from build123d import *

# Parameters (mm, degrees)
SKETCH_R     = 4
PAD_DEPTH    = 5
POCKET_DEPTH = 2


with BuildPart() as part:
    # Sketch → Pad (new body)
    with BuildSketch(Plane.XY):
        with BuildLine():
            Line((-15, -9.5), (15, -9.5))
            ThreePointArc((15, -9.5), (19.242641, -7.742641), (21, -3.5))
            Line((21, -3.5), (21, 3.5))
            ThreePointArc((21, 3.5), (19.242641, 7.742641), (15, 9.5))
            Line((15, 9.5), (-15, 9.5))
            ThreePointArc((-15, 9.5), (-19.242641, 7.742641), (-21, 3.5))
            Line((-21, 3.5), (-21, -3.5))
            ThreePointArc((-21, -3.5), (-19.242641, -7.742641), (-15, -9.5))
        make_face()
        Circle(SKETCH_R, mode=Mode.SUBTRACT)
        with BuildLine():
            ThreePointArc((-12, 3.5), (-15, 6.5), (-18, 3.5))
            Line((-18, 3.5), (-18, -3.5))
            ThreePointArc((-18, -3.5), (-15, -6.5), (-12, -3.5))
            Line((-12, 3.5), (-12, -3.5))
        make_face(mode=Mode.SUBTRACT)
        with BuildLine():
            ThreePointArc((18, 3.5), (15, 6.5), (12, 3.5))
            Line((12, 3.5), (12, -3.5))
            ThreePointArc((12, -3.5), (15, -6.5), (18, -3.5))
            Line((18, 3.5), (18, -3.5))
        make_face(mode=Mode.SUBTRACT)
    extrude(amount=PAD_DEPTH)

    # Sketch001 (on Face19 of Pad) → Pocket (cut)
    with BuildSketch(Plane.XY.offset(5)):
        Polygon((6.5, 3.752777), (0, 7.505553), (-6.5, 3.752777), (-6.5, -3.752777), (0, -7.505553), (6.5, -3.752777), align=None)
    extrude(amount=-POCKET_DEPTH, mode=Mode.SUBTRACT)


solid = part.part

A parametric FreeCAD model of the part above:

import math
import FreeCAD as App
import Part
import Sketcher
from FreeCAD import Vector
Q = App.Units.Quantity

doc = App.newDocument("Part")
body = doc.addObject("PartDesign::Body", "Body")

# Sketch on XY plane
sketch1 = doc.addObject("Sketcher::SketchObject", "Sketch")
body.addObject(sketch1)
sketch1.AttachmentSupport = (doc.XY_Plane, [""])
sketch1.MapMode = "FlatFace"
sketch1.addGeometry([
    Part.LineSegment(Vector(-15, -9.5, 0), Vector(15, -9.5, 0)),  # 0
    Part.ArcOfCircle(Part.Circle(Vector(15, -3.5, 0), Vector(0, 0, 1), 6), math.radians(-90), math.radians(0)),  # 1
    Part.LineSegment(Vector(21, -3.5, 0), Vector(21, 3.5, 0)),  # 2
    Part.ArcOfCircle(Part.Circle(Vector(15, 3.5, 0), Vector(0, 0, 1), 6), math.radians(0), math.radians(90)),  # 3
    Part.LineSegment(Vector(15, 9.5, 0), Vector(-15, 9.5, 0)),  # 4
    Part.ArcOfCircle(Part.Circle(Vector(-15, 3.5, 0), Vector(0, 0, 1), 6), math.radians(90), math.radians(180)),  # 5
    Part.LineSegment(Vector(-21, 3.5, 0), Vector(-21, -3.5, 0)),  # 6
    Part.ArcOfCircle(Part.Circle(Vector(-15, -3.5, 0), Vector(0, 0, 1), 6), math.radians(180), math.radians(270)),  # 7
    Part.ArcOfCircle(Part.Circle(Vector(-15, 3.5, 0), Vector(0, 0, 1), 3), math.radians(0), math.radians(180)),  # 8
    Part.LineSegment(Vector(-12, 3.5, 0), Vector(-12, -3.5, 0)),  # 9
    Part.ArcOfCircle(Part.Circle(Vector(-15, -3.5, 0), Vector(0, 0, 1), 3), math.radians(180), math.radians(360)),  # 10
    Part.LineSegment(Vector(-18, -3.5, 0), Vector(-18, 3.5, 0)),  # 11
    Part.Circle(Vector(0, 0, 0), Vector(0, 0, 1), 4),  # 12
    Part.ArcOfCircle(Part.Circle(Vector(15, 3.5, 0), Vector(0, 0, 1), 3), math.radians(0), math.radians(180)),  # 13
    Part.LineSegment(Vector(18, 3.5, 0), Vector(18, -3.5, 0)),  # 14
    Part.ArcOfCircle(Part.Circle(Vector(15, -3.5, 0), Vector(0, 0, 1), 3), math.radians(180), math.radians(360)),  # 15
    Part.LineSegment(Vector(12, -3.5, 0), Vector(12, 3.5, 0)),  # 16
], False)
sketch1.addConstraint([
    Sketcher.Constraint("Tangent", 0, 2, 1, 1),
    Sketcher.Constraint("Tangent", 1, 2, 2, 1),
    Sketcher.Constraint("Tangent", 2, 2, 3, 1),
    Sketcher.Constraint("Tangent", 3, 2, 4, 1),
    Sketcher.Constraint("Tangent", 4, 2, 5, 1),
    Sketcher.Constraint("Tangent", 5, 2, 6, 1),
    Sketcher.Constraint("Tangent", 6, 2, 7, 1),
    Sketcher.Constraint("Tangent", 7, 2, 0, 1),
    Sketcher.Constraint("Tangent", 8, 1, 9, 1),
    Sketcher.Constraint("Tangent", 9, 2, 10, 2),
    Sketcher.Constraint("Tangent", 10, 1, 11, 1),
    Sketcher.Constraint("Tangent", 11, 2, 8, 2),
    Sketcher.Constraint("Tangent", 13, 1, 14, 1),
    Sketcher.Constraint("Tangent", 14, 2, 15, 2),
    Sketcher.Constraint("Tangent", 15, 1, 16, 1),
    Sketcher.Constraint("Tangent", 16, 2, 13, 2),
    Sketcher.Constraint("Horizontal", 0),
    Sketcher.Constraint("Vertical", 2),
    Sketcher.Constraint("Horizontal", 4),
    Sketcher.Constraint("Vertical", 6),
    Sketcher.Constraint("Vertical", 9),
    Sketcher.Constraint("Vertical", 11),
    Sketcher.Constraint("Vertical", 14),
    Sketcher.Constraint("Vertical", 16),
    Sketcher.Constraint("Coincident", 12, 3, -1, 1),
    Sketcher.Constraint("Coincident", 8, 3, 5, 3),
    Sketcher.Constraint("Coincident", 10, 3, 7, 3),
    Sketcher.Constraint("Coincident", 13, 3, 3, 3),
    Sketcher.Constraint("Coincident", 15, 3, 1, 3),
    Sketcher.Constraint("Equal", 3, 5),
    Sketcher.Constraint("Equal", 10, 13),
    Sketcher.Constraint("Symmetric", 1, 3, 5, 3, -1, 1),
    Sketcher.Constraint("Diameter", 12, Q("8 mm")),
    Sketcher.Constraint("Radius", 1, Q("5.999999 mm")),
    Sketcher.Constraint("Radius", 8, Q("3 mm")),
    Sketcher.Constraint("DistanceX", 0, 1, 0, 2, Q("30 mm")),
    Sketcher.Constraint("DistanceY", 2, 1, 2, 2, Q("7 mm")),
])
pad1 = doc.addObject("PartDesign::Pad", "Pad")
body.addObject(pad1)
pad1.Profile = sketch1
pad1.Length = 5

# Sketch on XY plane
sketch2 = doc.addObject("Sketcher::SketchObject", "Sketch001")
body.addObject(sketch2)
sketch2.AttachmentSupport = (doc.XY_Plane, [""])
sketch2.MapMode = "FlatFace"
sketch2.AttachmentOffset = App.Placement(Vector(0, 0, 5), App.Rotation())
sketch2.addGeometry([
    Part.LineSegment(Vector(6, 4, 0), Vector(0, 8, 0)),  # 0
    Part.LineSegment(Vector(0, 8, 0), Vector(-6, 4, 0)),  # 1
    Part.LineSegment(Vector(-6, 4, 0), Vector(-6, -4, 0)),  # 2
    Part.LineSegment(Vector(-6, -4, 0), Vector(0, -8, 0)),  # 3
    Part.LineSegment(Vector(0, -8, 0), Vector(6, -4, 0)),  # 4
    Part.LineSegment(Vector(6, -4, 0), Vector(6, 4, 0)),  # 5
], False)
sketch2.addConstraint([
    Sketcher.Constraint("Coincident", 0, 2, 1, 1),
    Sketcher.Constraint("Coincident", 1, 2, 2, 1),
    Sketcher.Constraint("Coincident", 2, 2, 3, 1),
    Sketcher.Constraint("Coincident", 3, 2, 4, 1),
    Sketcher.Constraint("Coincident", 4, 2, 5, 1),
    Sketcher.Constraint("Coincident", 5, 2, 0, 1),
    Sketcher.Constraint("Vertical", 2),
    Sketcher.Constraint("Vertical", 5),
    Sketcher.Constraint("Symmetric", 0, 2, 3, 2, -1, 1),
    Sketcher.Constraint("Symmetric", 1, 2, 4, 2, -1, 1),
    Sketcher.Constraint("PointOnObject", 0, 2, -2),
    Sketcher.Constraint("Parallel", 0, 3),
    Sketcher.Constraint("Horizontal", 2, 2, 4, 2),
    Sketcher.Constraint("Angle", 0, Q("150.000005 deg")),
    Sketcher.Constraint("DistanceX", 2, 2, 4, 2, Q("13 mm")),
    Sketcher.Constraint("DistanceY", 2, 2, 2, 1, Q("7.505554 mm")),
])
pocket1 = doc.addObject("PartDesign::Pocket", "Pocket")
body.addObject(pocket1)
pocket1.Profile = sketch2
pocket1.Length = 2

doc.recompute()
